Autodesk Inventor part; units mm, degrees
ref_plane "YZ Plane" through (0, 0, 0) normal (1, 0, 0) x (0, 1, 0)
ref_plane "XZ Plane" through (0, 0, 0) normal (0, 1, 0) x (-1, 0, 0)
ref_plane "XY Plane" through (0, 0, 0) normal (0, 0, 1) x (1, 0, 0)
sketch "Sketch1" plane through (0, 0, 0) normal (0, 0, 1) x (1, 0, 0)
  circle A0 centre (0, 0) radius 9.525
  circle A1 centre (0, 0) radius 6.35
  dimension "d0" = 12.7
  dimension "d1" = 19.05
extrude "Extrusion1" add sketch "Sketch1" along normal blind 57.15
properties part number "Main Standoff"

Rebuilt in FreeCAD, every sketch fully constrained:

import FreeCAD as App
import Part
import Sketcher
Q = App.Units.Quantity

doc = App.newDocument("Part")
body = doc.addObject("PartDesign::Body", "Body")

# Sketch on XY plane
sketch1 = doc.addObject("Sketcher::SketchObject", "Sketch")
body.addObject(sketch1)
sketch1.AttachmentSupport = (doc.XY_Plane, [""])
sketch1.MapMode = "FlatFace"
sketch1.addGeometry(Part.Circle(App.Vector(0, 0, 0), App.Vector(0, 0, 1), 10), False)
sketch1.addGeometry(Part.Circle(App.Vector(0, 0, 0), App.Vector(0, 0, 1), 6), False)
sketch1.addConstraint(Sketcher.Constraint("Coincident", 0, 3, -1, 1))
sketch1.addConstraint(Sketcher.Constraint("Coincident", 1, 3, -1, 1))
sketch1.addConstraint(Sketcher.Constraint("Diameter", 1, Q("0.5 in")))
sketch1.addConstraint(Sketcher.Constraint("Diameter", 0, Q("0.75 in")))
pad1 = doc.addObject("PartDesign::Pad", "Pad")
body.addObject(pad1)
pad1.Profile = sketch1
pad1.Length = Q("2.25 in")

doc.recompute()
